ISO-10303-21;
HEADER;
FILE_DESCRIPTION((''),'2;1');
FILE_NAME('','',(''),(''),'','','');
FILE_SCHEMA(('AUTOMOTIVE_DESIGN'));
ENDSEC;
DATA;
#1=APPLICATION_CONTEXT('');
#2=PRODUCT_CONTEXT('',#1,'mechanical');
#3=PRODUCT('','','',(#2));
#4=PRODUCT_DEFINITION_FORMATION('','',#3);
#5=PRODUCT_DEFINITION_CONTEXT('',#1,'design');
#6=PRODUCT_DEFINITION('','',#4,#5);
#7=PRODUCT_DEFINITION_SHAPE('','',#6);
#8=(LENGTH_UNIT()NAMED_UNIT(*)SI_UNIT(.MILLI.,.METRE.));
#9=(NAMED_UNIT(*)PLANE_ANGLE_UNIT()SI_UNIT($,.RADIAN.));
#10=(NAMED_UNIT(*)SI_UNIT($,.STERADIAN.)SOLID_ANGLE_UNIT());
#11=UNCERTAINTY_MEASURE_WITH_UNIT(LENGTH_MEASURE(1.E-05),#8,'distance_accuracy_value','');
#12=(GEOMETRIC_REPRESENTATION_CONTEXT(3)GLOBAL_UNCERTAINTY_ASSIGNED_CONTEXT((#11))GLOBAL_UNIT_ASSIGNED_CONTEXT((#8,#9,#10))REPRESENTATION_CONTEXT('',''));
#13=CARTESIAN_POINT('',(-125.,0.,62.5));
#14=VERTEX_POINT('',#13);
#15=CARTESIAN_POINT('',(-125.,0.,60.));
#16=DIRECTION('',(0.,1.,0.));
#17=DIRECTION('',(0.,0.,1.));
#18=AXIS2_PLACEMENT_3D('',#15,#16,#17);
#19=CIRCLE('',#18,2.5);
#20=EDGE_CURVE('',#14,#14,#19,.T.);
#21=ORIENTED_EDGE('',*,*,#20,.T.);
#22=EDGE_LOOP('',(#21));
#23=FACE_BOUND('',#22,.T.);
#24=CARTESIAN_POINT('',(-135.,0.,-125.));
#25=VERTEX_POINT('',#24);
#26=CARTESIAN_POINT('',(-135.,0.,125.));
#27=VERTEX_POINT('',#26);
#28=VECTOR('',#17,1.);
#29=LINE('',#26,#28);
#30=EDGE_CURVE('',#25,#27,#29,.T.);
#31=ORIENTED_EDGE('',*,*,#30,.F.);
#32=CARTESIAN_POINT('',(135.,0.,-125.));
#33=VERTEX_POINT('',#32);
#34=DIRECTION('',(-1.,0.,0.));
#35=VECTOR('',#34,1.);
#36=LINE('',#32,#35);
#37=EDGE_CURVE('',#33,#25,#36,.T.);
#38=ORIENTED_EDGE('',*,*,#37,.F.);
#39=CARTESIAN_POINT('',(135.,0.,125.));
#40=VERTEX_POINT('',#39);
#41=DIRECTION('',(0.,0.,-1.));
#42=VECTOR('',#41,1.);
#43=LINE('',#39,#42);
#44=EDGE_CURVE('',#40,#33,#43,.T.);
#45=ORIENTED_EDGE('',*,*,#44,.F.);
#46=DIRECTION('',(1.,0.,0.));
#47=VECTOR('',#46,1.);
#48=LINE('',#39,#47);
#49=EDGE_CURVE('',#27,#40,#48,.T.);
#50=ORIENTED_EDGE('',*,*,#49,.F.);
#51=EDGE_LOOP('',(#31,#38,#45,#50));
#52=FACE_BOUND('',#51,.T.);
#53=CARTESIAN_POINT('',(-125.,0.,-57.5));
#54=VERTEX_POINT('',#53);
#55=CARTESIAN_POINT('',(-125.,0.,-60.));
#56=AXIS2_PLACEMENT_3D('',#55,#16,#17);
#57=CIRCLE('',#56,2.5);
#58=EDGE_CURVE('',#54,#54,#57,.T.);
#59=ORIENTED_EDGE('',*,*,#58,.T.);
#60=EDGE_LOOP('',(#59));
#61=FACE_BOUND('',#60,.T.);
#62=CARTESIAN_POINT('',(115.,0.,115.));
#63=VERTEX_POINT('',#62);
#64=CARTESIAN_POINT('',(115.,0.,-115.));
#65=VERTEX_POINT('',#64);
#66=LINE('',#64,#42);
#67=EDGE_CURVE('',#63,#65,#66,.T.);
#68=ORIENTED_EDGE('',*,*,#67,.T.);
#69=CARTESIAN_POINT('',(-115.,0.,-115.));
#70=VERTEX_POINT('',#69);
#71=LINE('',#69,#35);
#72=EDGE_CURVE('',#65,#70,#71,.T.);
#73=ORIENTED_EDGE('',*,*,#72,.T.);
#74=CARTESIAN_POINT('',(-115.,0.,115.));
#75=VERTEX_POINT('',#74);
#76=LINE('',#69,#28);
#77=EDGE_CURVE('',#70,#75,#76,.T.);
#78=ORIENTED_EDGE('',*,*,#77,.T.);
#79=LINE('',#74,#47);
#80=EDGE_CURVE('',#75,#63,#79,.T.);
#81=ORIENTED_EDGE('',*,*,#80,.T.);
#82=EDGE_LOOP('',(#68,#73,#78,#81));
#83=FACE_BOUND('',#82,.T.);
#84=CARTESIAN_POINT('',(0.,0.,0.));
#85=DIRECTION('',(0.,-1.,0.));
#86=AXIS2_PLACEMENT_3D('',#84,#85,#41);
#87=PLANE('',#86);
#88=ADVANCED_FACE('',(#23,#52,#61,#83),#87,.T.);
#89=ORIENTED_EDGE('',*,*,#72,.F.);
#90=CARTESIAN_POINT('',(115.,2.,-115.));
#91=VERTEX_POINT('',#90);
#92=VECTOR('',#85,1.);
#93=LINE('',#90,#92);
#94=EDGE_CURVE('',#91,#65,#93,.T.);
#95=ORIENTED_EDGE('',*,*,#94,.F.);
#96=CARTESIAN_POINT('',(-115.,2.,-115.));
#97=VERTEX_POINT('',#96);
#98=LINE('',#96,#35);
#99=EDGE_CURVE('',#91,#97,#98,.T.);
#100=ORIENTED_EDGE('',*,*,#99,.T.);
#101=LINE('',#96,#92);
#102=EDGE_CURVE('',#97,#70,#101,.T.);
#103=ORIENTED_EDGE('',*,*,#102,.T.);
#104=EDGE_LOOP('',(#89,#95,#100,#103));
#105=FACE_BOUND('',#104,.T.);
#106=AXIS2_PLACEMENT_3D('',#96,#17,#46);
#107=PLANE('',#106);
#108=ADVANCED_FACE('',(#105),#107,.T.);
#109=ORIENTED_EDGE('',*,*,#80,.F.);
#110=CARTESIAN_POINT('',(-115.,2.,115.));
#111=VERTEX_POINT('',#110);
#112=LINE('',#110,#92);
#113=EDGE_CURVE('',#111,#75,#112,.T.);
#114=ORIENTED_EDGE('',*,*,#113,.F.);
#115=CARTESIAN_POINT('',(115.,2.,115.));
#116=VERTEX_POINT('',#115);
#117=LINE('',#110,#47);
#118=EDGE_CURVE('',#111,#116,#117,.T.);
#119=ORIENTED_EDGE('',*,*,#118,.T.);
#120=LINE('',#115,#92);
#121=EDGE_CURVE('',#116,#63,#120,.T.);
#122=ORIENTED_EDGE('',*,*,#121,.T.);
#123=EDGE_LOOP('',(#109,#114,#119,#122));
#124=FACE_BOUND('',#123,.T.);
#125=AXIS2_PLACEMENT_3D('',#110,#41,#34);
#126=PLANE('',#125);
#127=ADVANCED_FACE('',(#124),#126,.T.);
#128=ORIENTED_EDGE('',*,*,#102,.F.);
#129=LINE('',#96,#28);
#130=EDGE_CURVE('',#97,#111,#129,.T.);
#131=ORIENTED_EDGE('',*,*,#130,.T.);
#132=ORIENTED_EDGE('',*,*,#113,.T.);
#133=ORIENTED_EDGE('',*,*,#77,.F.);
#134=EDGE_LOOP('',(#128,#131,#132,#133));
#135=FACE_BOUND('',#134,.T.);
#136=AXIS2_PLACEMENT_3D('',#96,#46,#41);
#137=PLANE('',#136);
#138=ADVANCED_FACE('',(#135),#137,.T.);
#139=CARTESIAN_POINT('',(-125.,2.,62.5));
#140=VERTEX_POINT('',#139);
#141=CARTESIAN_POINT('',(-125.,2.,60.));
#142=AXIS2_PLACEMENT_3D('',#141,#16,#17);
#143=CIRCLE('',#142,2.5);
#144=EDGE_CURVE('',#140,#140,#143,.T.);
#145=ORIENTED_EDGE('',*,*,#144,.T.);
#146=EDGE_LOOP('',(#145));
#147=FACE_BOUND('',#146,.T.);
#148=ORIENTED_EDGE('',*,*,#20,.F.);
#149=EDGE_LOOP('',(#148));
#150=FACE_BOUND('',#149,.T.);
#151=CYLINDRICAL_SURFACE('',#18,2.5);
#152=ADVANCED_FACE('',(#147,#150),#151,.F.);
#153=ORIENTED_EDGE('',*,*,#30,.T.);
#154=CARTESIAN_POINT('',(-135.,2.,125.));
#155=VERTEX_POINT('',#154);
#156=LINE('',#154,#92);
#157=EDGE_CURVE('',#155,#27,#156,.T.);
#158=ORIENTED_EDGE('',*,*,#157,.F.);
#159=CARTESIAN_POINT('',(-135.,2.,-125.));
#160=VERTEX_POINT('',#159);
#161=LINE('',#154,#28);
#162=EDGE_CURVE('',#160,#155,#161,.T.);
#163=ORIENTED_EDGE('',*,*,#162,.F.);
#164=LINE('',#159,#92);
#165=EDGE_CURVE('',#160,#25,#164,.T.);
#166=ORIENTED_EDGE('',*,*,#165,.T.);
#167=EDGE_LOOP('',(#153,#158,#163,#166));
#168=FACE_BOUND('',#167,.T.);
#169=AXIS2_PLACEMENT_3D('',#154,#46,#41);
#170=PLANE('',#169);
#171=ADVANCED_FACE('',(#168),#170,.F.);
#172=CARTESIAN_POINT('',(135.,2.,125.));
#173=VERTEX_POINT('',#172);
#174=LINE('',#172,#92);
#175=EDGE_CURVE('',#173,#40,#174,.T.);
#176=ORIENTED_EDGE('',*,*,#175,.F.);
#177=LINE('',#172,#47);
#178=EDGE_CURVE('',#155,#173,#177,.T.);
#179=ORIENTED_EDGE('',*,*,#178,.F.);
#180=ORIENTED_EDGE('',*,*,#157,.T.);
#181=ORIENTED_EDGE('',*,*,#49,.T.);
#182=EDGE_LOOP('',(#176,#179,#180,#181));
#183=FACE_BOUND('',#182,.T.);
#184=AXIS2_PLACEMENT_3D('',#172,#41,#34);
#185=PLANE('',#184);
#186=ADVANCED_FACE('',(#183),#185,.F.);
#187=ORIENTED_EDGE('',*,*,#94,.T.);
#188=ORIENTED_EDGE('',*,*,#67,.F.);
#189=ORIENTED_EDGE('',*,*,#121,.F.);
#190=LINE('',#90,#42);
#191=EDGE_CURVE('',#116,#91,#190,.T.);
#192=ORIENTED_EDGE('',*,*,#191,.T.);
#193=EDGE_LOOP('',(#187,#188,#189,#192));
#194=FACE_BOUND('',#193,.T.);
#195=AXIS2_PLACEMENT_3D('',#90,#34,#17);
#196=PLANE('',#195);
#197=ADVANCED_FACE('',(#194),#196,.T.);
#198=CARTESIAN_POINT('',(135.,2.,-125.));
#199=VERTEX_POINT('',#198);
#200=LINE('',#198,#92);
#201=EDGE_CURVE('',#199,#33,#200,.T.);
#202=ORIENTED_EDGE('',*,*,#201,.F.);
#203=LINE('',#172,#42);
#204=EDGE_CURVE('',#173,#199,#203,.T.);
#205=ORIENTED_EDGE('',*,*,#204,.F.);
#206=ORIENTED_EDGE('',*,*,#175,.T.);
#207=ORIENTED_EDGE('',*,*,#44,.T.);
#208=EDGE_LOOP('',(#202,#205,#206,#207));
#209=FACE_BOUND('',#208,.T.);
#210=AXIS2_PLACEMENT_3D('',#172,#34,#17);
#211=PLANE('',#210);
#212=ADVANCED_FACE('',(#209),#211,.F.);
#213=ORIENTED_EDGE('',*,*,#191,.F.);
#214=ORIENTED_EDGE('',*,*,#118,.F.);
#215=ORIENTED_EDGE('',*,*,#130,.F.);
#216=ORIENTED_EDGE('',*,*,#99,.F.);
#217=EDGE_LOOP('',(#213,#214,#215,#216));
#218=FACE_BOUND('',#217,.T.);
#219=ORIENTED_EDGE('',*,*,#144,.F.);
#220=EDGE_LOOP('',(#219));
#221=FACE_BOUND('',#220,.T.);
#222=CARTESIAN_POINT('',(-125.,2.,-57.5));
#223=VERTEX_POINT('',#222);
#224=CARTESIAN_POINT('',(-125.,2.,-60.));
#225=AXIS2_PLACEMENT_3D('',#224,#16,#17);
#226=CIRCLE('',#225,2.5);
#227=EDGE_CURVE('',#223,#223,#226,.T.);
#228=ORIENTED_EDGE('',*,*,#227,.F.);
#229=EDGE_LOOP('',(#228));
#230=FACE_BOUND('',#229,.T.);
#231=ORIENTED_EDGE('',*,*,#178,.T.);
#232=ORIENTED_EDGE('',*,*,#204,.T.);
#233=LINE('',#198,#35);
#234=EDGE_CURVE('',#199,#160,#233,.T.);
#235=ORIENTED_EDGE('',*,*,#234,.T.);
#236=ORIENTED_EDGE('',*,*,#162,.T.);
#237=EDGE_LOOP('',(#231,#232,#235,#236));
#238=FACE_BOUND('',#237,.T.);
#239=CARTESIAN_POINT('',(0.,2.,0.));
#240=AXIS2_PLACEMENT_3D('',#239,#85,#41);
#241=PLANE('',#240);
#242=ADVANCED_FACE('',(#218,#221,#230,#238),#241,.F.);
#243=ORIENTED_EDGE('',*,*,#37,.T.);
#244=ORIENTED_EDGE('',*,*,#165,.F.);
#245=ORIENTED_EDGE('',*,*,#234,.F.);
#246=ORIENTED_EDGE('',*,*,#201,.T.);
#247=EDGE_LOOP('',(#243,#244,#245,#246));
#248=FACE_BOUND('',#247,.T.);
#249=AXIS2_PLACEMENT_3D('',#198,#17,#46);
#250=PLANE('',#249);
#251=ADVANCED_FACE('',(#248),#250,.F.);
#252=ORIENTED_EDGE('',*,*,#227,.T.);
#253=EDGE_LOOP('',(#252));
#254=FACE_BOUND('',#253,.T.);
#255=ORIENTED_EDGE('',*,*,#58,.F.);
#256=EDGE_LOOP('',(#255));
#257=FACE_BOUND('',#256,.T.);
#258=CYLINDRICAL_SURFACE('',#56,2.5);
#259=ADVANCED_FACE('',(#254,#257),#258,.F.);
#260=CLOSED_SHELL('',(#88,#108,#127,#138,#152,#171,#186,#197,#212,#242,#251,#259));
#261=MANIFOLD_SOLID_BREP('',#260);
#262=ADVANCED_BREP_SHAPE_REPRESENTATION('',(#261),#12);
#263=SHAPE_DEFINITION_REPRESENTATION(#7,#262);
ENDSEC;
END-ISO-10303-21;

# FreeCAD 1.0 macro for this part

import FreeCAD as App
import Part
import Sketcher
from FreeCAD import Vector


def add_polygon(sketch, points):
    """Adds a closed chain of lines whose ends are joined by coincident constraints."""
    first, n = sketch.GeometryCount, len(points)
    for a, b in zip(points, points[1:] + points[:1]):
        sketch.addGeometry(Part.LineSegment(App.Vector(*a, 0), App.Vector(*b, 0)), False)
    for i in range(n):
        sketch.addConstraint(Sketcher.Constraint("Coincident", first + i, 2, first + (i + 1) % n, 1))

doc = App.newDocument("Part")
body = doc.addObject("PartDesign::Body", "Body")

sketch1 = doc.addObject("Sketcher::SketchObject", "Sketch")
body.addObject(sketch1)
sketch1.AttachmentSupport = (doc.XZ_Plane, [""])
sketch1.MapMode = "FlatFace"
add_polygon(sketch1, [(-135, -125), (-135, 125), (135, 125), (135, -125)])
add_polygon(sketch1, [(115, 115), (-115, 115), (-115, -115), (115, -115)])
sketch1.addConstraint([
    Sketcher.Constraint("Vertical", 0),
    Sketcher.Constraint("Horizontal", 1),
    Sketcher.Constraint("Vertical", 2),
    Sketcher.Constraint("Horizontal", 3),
    Sketcher.Constraint("Horizontal", 4),
    Sketcher.Constraint("Vertical", 5),
    Sketcher.Constraint("Horizontal", 6),
    Sketcher.Constraint("Vertical", 7),
    Sketcher.Constraint("Symmetric", 0, 2, 2, 2, -1, 1),
    Sketcher.Constraint("Symmetric", 4, 2, 6, 2, -1, 1),
    Sketcher.Constraint("Equal", 6, 5),
    Sketcher.Constraint("DistanceX", 1, 1, 1, 2, 270.0),
    Sketcher.Constraint("DistanceX", 4, 2, 4, 1, 230.0),
    Sketcher.Constraint("DistanceY", 0, 1, 0, 2, 250.0),
])
pad1 = doc.addObject("PartDesign::Pad", "Pad")
body.addObject(pad1)
pad1.Profile = sketch1
pad1.Length = 2
pad1.Reversed = True

sketch2 = doc.addObject("Sketcher::SketchObject", "Sketch001")
body.addObject(sketch2)
sketch2.AttachmentSupport = (doc.XZ_Plane, [""])
sketch2.MapMode = "FlatFace"
sketch2.AttachmentOffset = App.Placement(Vector(0, 0, -2), App.Rotation())
sketch2.addGeometry([
    Part.Circle(Vector(-125, -60, 0), Vector(0, 0, 1), 2.5),
    Part.Circle(Vector(-125, 60, 0), Vector(0, 0, 1), 2.5),
], False)
sketch2.addConstraint([
    Sketcher.Constraint("Equal", 0, 1),
    Sketcher.Constraint("Symmetric", 0, 3, 1, 3, -1),
    Sketcher.Constraint("Diameter", 0, 5.0),
    Sketcher.Constraint("DistanceX", 0, 3, -1, 1, 125.0),
    Sketcher.Constraint("DistanceY", 0, 3, -1, 1, 60.0),
])
pocket1 = doc.addObject("PartDesign::Pocket", "Pocket")
body.addObject(pocket1)
pocket1.Profile = sketch2
pocket1.Type = "ThroughAll"
pocket1.Reversed = True

doc.recompute()
